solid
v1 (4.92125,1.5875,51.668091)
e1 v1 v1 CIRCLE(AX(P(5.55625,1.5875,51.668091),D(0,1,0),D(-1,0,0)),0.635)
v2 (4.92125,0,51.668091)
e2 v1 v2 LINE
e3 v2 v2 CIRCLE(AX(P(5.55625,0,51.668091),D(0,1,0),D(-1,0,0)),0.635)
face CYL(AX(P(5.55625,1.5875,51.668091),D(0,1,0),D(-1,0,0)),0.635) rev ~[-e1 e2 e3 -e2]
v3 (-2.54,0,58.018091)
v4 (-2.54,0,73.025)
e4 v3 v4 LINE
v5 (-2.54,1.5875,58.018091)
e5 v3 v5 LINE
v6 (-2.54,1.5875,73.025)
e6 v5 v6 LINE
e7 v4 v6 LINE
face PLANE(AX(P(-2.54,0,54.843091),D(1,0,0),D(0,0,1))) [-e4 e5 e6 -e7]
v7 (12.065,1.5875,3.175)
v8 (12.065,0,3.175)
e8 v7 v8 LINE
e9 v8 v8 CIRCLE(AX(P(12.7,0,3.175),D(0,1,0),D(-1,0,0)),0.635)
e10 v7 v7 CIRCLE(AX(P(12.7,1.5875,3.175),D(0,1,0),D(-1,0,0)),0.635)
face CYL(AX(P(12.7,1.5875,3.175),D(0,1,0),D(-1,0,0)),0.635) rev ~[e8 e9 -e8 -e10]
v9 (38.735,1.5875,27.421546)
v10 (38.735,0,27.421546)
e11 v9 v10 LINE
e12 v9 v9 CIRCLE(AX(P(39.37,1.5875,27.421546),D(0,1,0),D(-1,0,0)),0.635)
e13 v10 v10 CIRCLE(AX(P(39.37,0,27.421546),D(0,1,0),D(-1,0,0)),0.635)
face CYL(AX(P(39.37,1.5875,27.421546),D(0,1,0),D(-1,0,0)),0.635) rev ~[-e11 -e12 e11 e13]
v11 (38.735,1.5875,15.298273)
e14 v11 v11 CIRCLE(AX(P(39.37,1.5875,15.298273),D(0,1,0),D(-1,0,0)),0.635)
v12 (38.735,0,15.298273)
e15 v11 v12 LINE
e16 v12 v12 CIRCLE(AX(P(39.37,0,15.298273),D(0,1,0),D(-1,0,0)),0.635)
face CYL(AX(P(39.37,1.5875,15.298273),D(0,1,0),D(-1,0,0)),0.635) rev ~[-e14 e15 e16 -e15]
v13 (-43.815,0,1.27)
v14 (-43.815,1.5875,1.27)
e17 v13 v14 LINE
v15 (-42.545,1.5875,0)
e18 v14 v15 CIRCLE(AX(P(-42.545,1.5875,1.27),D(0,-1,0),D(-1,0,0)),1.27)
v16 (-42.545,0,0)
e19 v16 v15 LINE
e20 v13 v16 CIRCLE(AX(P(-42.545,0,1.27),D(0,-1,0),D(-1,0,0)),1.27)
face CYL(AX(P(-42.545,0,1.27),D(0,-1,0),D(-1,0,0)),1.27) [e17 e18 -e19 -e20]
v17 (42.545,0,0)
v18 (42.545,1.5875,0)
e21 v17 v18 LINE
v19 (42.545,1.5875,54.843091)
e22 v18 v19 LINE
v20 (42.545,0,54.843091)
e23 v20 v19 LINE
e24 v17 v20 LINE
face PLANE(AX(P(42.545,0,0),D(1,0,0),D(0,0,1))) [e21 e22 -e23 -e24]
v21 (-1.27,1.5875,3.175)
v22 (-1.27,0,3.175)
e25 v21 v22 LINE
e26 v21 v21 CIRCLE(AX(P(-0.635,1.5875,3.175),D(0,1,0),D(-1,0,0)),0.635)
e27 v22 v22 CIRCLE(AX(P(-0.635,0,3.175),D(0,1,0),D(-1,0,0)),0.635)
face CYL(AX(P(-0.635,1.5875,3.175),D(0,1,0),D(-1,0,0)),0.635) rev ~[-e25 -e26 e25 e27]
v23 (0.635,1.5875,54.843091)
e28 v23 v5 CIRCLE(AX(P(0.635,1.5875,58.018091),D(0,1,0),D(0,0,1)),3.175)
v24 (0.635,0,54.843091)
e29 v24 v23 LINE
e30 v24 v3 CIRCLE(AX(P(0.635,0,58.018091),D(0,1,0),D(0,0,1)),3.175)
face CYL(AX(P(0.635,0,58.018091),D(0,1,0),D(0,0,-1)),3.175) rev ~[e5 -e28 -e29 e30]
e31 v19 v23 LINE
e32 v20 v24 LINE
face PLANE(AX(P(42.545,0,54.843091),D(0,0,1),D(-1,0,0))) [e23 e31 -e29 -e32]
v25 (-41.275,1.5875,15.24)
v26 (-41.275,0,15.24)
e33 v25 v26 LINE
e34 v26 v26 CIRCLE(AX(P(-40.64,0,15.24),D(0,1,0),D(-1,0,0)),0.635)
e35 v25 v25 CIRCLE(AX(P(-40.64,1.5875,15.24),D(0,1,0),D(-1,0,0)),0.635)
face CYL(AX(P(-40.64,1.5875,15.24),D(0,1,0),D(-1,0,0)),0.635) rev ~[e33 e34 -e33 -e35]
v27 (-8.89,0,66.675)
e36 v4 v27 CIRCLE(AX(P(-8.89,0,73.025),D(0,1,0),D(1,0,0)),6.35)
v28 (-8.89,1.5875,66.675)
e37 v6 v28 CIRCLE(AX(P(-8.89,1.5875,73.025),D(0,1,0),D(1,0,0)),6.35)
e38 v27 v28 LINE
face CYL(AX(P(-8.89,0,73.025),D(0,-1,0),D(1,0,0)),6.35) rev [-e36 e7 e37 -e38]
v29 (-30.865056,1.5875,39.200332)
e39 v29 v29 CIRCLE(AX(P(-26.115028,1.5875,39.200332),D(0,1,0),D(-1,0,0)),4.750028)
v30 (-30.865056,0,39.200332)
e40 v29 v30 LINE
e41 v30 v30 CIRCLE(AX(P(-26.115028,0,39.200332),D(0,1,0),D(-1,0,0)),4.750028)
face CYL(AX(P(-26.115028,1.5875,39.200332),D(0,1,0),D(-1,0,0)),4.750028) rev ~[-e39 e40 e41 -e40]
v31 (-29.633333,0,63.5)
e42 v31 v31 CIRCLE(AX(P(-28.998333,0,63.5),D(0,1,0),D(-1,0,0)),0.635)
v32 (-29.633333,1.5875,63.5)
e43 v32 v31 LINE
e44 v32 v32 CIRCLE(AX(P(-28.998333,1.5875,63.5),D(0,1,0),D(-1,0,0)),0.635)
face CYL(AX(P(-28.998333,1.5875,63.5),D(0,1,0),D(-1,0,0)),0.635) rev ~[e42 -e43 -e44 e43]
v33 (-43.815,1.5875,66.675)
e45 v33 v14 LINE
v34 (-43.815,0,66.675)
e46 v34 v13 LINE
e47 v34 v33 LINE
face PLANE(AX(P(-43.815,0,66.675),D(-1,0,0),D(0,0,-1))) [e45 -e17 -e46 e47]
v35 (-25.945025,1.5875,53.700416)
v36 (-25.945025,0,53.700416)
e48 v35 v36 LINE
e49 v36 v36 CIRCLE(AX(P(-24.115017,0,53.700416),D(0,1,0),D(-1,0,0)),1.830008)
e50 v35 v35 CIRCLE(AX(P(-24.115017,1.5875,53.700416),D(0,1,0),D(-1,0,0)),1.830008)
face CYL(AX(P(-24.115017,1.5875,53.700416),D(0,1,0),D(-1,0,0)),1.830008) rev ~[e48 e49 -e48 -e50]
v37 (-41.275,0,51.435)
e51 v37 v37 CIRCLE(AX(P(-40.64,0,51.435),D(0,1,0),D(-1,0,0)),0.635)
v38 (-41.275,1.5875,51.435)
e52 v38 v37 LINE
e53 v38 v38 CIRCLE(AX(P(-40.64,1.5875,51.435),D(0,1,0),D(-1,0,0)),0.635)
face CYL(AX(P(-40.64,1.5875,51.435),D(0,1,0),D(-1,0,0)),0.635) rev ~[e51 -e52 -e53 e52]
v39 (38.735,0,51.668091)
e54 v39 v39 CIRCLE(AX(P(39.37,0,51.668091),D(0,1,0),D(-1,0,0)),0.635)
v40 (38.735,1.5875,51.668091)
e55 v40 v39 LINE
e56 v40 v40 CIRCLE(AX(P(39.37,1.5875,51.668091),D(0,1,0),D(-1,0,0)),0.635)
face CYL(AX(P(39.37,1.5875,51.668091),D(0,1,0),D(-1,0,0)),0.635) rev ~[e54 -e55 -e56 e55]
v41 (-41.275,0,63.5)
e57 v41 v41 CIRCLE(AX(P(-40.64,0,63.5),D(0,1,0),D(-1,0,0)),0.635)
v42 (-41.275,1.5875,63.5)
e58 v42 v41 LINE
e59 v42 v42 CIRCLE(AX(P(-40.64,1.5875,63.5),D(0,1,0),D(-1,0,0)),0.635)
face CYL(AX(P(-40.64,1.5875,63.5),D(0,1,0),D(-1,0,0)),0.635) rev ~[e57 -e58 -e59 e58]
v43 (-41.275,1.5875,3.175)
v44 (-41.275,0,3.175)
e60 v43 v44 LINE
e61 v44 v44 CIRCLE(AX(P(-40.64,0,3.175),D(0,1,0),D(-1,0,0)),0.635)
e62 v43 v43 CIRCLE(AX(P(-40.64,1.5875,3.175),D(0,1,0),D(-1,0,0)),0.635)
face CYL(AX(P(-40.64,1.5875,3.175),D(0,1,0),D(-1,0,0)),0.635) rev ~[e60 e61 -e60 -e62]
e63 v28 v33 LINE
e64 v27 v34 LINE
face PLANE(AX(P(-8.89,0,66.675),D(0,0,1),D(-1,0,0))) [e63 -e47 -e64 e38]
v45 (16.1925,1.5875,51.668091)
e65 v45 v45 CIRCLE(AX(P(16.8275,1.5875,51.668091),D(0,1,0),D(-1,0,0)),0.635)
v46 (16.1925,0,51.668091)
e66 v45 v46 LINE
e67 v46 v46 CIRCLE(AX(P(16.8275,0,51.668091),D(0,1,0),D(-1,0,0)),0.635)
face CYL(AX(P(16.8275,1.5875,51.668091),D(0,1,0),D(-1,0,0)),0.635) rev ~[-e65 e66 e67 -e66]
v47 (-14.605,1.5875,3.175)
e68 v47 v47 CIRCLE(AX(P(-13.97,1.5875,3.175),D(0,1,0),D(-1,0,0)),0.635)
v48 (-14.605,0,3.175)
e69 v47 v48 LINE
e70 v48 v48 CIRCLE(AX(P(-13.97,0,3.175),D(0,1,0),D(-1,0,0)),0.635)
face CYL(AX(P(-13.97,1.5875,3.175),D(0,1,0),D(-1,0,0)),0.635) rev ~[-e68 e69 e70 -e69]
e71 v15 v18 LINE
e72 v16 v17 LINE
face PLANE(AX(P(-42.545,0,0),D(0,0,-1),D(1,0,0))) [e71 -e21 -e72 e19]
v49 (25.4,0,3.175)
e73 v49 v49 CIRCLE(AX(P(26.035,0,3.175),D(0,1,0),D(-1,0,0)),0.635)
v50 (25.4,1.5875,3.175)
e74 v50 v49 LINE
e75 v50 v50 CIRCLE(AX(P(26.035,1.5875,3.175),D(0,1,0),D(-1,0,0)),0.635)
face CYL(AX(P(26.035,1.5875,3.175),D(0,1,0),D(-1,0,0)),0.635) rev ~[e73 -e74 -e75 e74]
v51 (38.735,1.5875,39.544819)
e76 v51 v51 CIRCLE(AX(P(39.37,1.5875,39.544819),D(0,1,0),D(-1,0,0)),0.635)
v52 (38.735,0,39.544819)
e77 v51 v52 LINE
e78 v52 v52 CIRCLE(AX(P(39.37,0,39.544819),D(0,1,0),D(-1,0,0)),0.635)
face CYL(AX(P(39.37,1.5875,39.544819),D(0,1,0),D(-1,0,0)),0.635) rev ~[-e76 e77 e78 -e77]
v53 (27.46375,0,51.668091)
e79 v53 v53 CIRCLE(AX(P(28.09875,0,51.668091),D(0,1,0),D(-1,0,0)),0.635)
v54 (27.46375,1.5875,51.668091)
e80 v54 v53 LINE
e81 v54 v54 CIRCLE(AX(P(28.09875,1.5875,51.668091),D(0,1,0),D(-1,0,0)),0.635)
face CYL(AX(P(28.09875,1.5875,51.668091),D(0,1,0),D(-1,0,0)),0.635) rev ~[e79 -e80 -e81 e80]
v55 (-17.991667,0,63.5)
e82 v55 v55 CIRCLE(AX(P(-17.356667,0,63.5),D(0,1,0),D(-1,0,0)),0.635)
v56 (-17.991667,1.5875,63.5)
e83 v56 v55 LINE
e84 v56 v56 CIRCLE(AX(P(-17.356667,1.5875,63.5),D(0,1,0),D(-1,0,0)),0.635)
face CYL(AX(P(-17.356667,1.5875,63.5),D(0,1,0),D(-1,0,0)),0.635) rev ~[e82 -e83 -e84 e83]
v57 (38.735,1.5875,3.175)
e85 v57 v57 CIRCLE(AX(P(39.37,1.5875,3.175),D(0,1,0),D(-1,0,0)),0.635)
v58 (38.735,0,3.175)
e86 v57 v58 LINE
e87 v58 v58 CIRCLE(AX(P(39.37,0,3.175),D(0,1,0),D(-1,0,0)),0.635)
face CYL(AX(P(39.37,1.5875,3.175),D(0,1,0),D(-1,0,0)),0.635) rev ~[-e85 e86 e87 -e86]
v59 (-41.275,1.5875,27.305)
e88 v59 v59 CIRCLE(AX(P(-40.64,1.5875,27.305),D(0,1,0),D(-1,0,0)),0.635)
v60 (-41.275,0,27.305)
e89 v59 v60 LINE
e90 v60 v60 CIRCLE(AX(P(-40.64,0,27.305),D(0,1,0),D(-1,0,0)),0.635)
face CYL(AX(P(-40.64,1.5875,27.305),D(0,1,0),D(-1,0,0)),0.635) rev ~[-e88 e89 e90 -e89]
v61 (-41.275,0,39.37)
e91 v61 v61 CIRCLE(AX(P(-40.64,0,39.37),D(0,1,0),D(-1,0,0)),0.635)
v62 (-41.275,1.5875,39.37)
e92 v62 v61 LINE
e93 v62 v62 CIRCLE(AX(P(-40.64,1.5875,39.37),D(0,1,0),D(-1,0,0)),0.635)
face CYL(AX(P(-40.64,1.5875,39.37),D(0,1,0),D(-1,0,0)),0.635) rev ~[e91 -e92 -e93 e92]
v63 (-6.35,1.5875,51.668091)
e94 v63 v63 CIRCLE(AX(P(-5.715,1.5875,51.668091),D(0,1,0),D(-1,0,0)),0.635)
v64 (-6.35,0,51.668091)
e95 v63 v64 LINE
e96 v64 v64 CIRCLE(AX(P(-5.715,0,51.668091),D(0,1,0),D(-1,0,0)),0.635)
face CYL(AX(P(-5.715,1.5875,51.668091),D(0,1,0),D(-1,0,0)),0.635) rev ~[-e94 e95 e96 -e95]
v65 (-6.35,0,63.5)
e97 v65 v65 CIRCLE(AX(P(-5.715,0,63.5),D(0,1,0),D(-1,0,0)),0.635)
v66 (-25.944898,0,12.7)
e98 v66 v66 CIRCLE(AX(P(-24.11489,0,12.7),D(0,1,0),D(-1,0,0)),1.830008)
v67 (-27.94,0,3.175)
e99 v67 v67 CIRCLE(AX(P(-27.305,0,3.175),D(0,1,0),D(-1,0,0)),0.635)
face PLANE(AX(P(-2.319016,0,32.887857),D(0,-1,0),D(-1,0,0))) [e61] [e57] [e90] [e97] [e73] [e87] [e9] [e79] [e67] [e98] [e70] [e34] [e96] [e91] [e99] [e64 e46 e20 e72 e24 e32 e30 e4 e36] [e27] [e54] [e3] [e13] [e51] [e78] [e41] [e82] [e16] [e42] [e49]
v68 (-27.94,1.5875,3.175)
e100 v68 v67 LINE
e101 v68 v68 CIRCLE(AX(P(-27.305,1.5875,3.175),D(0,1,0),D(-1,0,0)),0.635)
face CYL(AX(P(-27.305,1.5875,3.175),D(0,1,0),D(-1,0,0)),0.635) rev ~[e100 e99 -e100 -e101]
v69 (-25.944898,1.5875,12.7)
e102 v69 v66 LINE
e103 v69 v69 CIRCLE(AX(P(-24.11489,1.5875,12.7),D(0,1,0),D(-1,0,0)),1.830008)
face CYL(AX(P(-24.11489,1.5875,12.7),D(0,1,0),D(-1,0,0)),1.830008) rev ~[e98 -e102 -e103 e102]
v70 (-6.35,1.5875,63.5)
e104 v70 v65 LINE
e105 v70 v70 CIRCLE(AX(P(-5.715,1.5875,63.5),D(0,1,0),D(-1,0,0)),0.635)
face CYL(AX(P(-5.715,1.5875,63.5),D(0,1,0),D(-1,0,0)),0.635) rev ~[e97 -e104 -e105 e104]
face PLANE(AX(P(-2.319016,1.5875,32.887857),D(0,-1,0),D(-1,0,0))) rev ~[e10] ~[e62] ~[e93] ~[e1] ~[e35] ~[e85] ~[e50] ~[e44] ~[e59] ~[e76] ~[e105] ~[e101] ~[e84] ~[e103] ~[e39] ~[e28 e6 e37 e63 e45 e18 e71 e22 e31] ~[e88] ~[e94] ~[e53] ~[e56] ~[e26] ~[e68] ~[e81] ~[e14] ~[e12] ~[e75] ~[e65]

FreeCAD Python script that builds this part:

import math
import FreeCAD as App
import Part
import Sketcher
Q = App.Units.Quantity


def edges_at(feature, points):
    """Names of the edges that pass closest to the given points."""
    edges = feature.Shape.Edges
    near = lambda p: min(range(len(edges)), key=lambda i: edges[i].distToShape(Part.Vertex(*p))[0])
    return sorted({f"Edge{near(p) + 1}" for p in points})

doc = App.newDocument("Part")
body = doc.addObject("PartDesign::Body", "Body")

# Sketch on XZ plane
sketch1 = body.newObject("Sketcher::SketchObject", "Sketch")
sketch1.AttachmentSupport = (doc.getObject("XZ_Plane"), [""])
sketch1.MapMode = "FlatFace"
sketch1.addGeometry([
    Part.LineSegment(App.Vector(-43.8, 66.7, 0), App.Vector(-8.9, 66.7, 0)),  # 0
    Part.ArcOfCircle(Part.Circle(App.Vector(-8.9, 73, 0), App.Vector(0, 0, 1), 6.3), math.radians(-90), math.radians(0)),  # 1
    Part.LineSegment(App.Vector(-2.5, 73, 0), App.Vector(-2.5, 54.8, 0)),  # 2
    Part.LineSegment(App.Vector(-2.5, 54.8, 0), App.Vector(42.5, 54.8, 0)),  # 3
    Part.LineSegment(App.Vector(42.5, 54.8, 0), App.Vector(42.5, 0, 0)),  # 4
    Part.LineSegment(App.Vector(42.5, 0, 0), App.Vector(-42.5, 0, 0)),  # 5
    Part.ArcOfCircle(Part.Circle(App.Vector(-42.5, 1.3, 0), App.Vector(0, 0, 1), 1.3), math.radians(180), math.radians(270)),  # 6
    Part.LineSegment(App.Vector(-43.8, 1.3, 0), App.Vector(-43.8, 66.7, 0)),  # 7
], False)
sketch1.addConstraint([
    Sketcher.Constraint("Tangent", 0, 2, 1, 1),
    Sketcher.Constraint("Tangent", 1, 2, 2, 1),
    Sketcher.Constraint("Coincident", 2, 2, 3, 1),
    Sketcher.Constraint("Coincident", 3, 2, 4, 1),
    Sketcher.Constraint("Coincident", 4, 2, 5, 1),
    Sketcher.Constraint("Tangent", 5, 2, 6, 2),
    Sketcher.Constraint("Tangent", 6, 1, 7, 1),
    Sketcher.Constraint("Coincident", 7, 2, 0, 1),
    Sketcher.Constraint("Horizontal", 0),
    Sketcher.Constraint("Vertical", 2),
    Sketcher.Constraint("Horizontal", 3),
    Sketcher.Constraint("Vertical", 4),
    Sketcher.Constraint("Horizontal", 5),
    Sketcher.Constraint("Vertical", 7),
    Sketcher.Constraint("Symmetric", 4, 2, 5, 2, -1, 1),
    Sketcher.Constraint("Radius", 1, Q("0.25 in")),
    Sketcher.Constraint("Radius", 6, Q("0.05 in")),
    Sketcher.Constraint("DistanceX", 5, 2, 5, 1, Q("3.35 in")),
    Sketcher.Constraint("DistanceX", 1, 2, -1, 1, Q("0.1 in")),
    Sketcher.Constraint("DistanceY", 7, 1, 7, 2, Q("2.575 in")),
    Sketcher.Constraint("DistanceY", 2, 2, 2, 1, Q("18.181909 mm")),
])
pad1 = body.newObject("PartDesign::Pad", "Pad")
pad1.Profile = sketch1
pad1.Length = Q("0.0625 in")
pad1.Reversed = True
doc.recompute()

fillet = body.newObject("PartDesign::Fillet", "Fillet")
fillet.Base = (pad1, edges_at(pad1, [(-2.54, 0.794, 54.843)]))
fillet.Radius = Q("0.125 in")

# Sketch on XZ plane
sketch2 = body.newObject("Sketcher::SketchObject", "Sketch001")
sketch2.AttachmentSupport = (doc.getObject("XZ_Plane"), [""])
sketch2.MapMode = "FlatFace"
sketch2.AttachmentOffset = App.Placement(App.Vector(0, 0, -0.0625 * 25.4), App.Rotation())
sketch2.addGeometry([
    Part.Circle(App.Vector(-26.1, 39.2, 0), App.Vector(0, 0, 1), 4.8),
    Part.Circle(App.Vector(-24.1, 53.7, 0), App.Vector(0, 0, 1), 1.8),
    Part.Circle(App.Vector(-24.1, 12.7, 0), App.Vector(0, 0, 1), 1.8),
], False)
sketch2.addConstraint([
    Sketcher.Constraint("Equal", 1, 2),
    Sketcher.Constraint("DistanceY", -1, 1, 2, 3, Q("0.5 in")),
    Sketcher.Constraint("Diameter", 0, Q("9.500055 mm")),
    Sketcher.Constraint("Diameter", 1, Q("3.660016 mm")),
    Sketcher.Constraint("DistanceX", 0, 3, -1, 1, Q("26.115028 mm")),
    Sketcher.Constraint("DistanceY", -1, 1, 0, 3, Q("39.200332 mm")),
    Sketcher.Constraint("DistanceX", 2, 3, -1, 1, Q("24.11489 mm")),
    Sketcher.Constraint("DistanceX", 0, 3, 1, 3, Q("2.000012 mm")),
    Sketcher.Constraint("DistanceY", -1, 1, 1, 3, Q("53.700416 mm")),
])
pocket1 = body.newObject("PartDesign::Pocket", "Pocket")
pocket1.Profile = sketch2
pocket1.Type = "ThroughAll"
pocket1.Midplane = True

# Sketch on XZ plane
sketch3 = body.newObject("Sketcher::SketchObject", "Sketch002")
sketch3.AttachmentSupport = (doc.getObject("XZ_Plane"), [""])
sketch3.MapMode = "FlatFace"
sketch3.AttachmentOffset = App.Placement(App.Vector(0, 0, -0.0625 * 25.4), App.Rotation())
sketch3.addGeometry([
    Part.Circle(App.Vector(-27.3, 3.2, 0), App.Vector(0, 0, 1), 0.6),  # 0
    Part.Circle(App.Vector(-14, 3.2, 0), App.Vector(0, 0, 1), 0.6),  # 1
    Part.Circle(App.Vector(-0.6, 3.2, 0), App.Vector(0, 0, 1), 0.6),  # 2
    Part.Circle(App.Vector(12.7, 3.2, 0), App.Vector(0, 0, 1), 0.6),  # 3
    Part.Circle(App.Vector(26, 3.2, 0), App.Vector(0, 0, 1), 0.6),  # 4
    Part.Circle(App.Vector(39.4, 3.2, 0), App.Vector(0, 0, 1), 0.6),  # 5
    Part.Circle(App.Vector(39.4, 15.3, 0), App.Vector(0, 0, 1), 0.6),  # 6
    Part.Circle(App.Vector(39.4, 27.4, 0), App.Vector(0, 0, 1), 0.6),  # 7
    Part.Circle(App.Vector(39.4, 39.5, 0), App.Vector(0, 0, 1), 0.6),  # 8
    Part.Circle(App.Vector(39.4, 51.7, 0), App.Vector(0, 0, 1), 0.6),  # 9
    Part.Circle(App.Vector(28.1, 51.7, 0), App.Vector(0, 0, 1), 0.6),  # 10
    Part.Circle(App.Vector(16.8, 51.7, 0), App.Vector(0, 0, 1), 0.6),  # 11
    Part.Circle(App.Vector(5.6, 51.7, 0), App.Vector(0, 0, 1), 0.6),  # 12
    Part.Circle(App.Vector(-5.7, 51.7, 0), App.Vector(0, 0, 1), 0.6),  # 13
    Part.Circle(App.Vector(-5.7, 63.5, 0), App.Vector(0, 0, 1), 0.6),  # 14
    Part.Circle(App.Vector(-17.4, 63.5, 0), App.Vector(0, 0, 1), 0.6),  # 15
    Part.Circle(App.Vector(-29, 63.5, 0), App.Vector(0, 0, 1), 0.6),  # 16
    Part.Circle(App.Vector(-40.6, 63.5, 0), App.Vector(0, 0, 1), 0.6),  # 17
    Part.Circle(App.Vector(-40.6, 51.4, 0), App.Vector(0, 0, 1), 0.6),  # 18
    Part.Circle(App.Vector(-40.6, 39.4, 0), App.Vector(0, 0, 1), 0.6),  # 19
    Part.Circle(App.Vector(-40.6, 27.3, 0), App.Vector(0, 0, 1), 0.6),  # 20
    Part.Circle(App.Vector(-40.6, 15.2, 0), App.Vector(0, 0, 1), 0.6),  # 21
    Part.Circle(App.Vector(-40.6, 3.2, 0), App.Vector(0, 0, 1), 0.6),  # 22
], False)
sketch3.addConstraint([
    Sketcher.Constraint("Equal", 0, 1),
    Sketcher.Constraint("Equal", 1, 2),
    Sketcher.Constraint("Equal", 2, 3),
    Sketcher.Constraint("Equal", 3, 4),
    Sketcher.Constraint("Equal", 4, 5),
    Sketcher.Constraint("Equal", 5, 6),
    Sketcher.Constraint("Equal", 6, 7),
    Sketcher.Constraint("Equal", 7, 8),
    Sketcher.Constraint("Equal", 8, 9),
    Sketcher.Constraint("Equal", 9, 10),
    Sketcher.Constraint("Equal", 10, 11),
    Sketcher.Constraint("Equal", 11, 12),
    Sketcher.Constraint("Equal", 12, 13),
    Sketcher.Constraint("Equal", 13, 14),
    Sketcher.Constraint("Equal", 14, 15),
    Sketcher.Constraint("Equal", 15, 16),
    Sketcher.Constraint("Equal", 16, 17),
    Sketcher.Constraint("Equal", 17, 18),
    Sketcher.Constraint("Equal", 18, 19),
    Sketcher.Constraint("Equal", 19, 20),
    Sketcher.Constraint("Equal", 20, 21),
    Sketcher.Constraint("Equal", 21, 22),
    Sketcher.Constraint("Horizontal", 0, 3, 1, 3),
    Sketcher.Constraint("Horizontal", 1, 3, 2, 3),
    Sketcher.Constraint("Horizontal", 2, 3, 3, 3),
    Sketcher.Constraint("Horizontal", 3, 3, 4, 3),
    Sketcher.Constraint("Horizontal", 4, 3, 5, 3),
    Sketcher.Constraint("Horizontal", 9, 3, 10, 3),
    Sketcher.Constraint("Horizontal", 10, 3, 11, 3),
    Sketcher.Constraint("Horizontal", 11, 3, 12, 3),
    Sketcher.Constraint("Horizontal", 12, 3, 13, 3),
    Sketcher.Constraint("Horizontal", 14, 3, 15, 3),
    Sketcher.Constraint("Horizontal", 15, 3, 16, 3),
    Sketcher.Constraint("Horizontal", 16, 3, 17, 3),
    Sketcher.Constraint("Horizontal", 5, 3, 22, 3),
    Sketcher.Constraint("Vertical", 5, 3, 6, 3),
    Sketcher.Constraint("Vertical", 6, 3, 7, 3),
    Sketcher.Constraint("Vertical", 7, 3, 8, 3),
    Sketcher.Constraint("Vertical", 8, 3, 9, 3),
    Sketcher.Constraint("Vertical", 13, 3, 14, 3),
    Sketcher.Constraint("Vertical", 17, 3, 18, 3),
    Sketcher.Constraint("Vertical", 18, 3, 19, 3),
    Sketcher.Constraint("Vertical", 19, 3, 20, 3),
    Sketcher.Constraint("Vertical", 20, 3, 21, 3),
    Sketcher.Constraint("Vertical", 21, 3, 22, 3),
    Sketcher.Constraint("Diameter", 0, Q("0.05 in")),
    Sketcher.Constraint("DistanceX", -1, 1, 3, 3, Q("0.5 in")),
    Sketcher.Constraint("DistanceY", -1, 1, 14, 3, Q("2.5 in")),
    Sketcher.Constraint("DistanceX", 17, 3, -1, 1, Q("1.6 in")),
    Sketcher.Constraint("DistanceY", -1, 1, 21, 3, Q("0.6 in")),
    Sketcher.Constraint("DistanceX", 0, 3, 4, 3, Q("2.1 in")),
    Sketcher.Constraint("DistanceX", 1, 3, 5, 3, Q("2.1 in")),
    Sketcher.Constraint("DistanceX", 1, 3, -1, 1, Q("0.55 in")),
    Sketcher.Constraint("DistanceY", -1, 1, 19, 3, Q("1.55 in")),
    Sketcher.Constraint("DistanceX", 0, 3, 2, 3, Q("1.05 in")),
    Sketcher.Constraint("DistanceY", 20, 3, 18, 3, Q("0.95 in")),
    Sketcher.Constraint("DistanceY", 0, 3, 20, 3, Q("0.95 in")),
    Sketcher.Constraint("DistanceX", 0, 3, -1, 1, Q("1.075 in")),
    Sketcher.Constraint("DistanceY", -1, 1, 0, 3, Q("0.125 in")),
    Sketcher.Constraint("DistanceX", -1, 1, 12, 3, Q("0.21875 in")),
    Sketcher.Constraint("DistanceX", 13, 3, -1, 1, Q("0.225 in")),
    Sketcher.Constraint("DistanceX", -1, 1, 11, 3, Q("0.6625 in")),
    Sketcher.Constraint("DistanceX", 12, 3, 10, 3, Q("0.8875 in")),
    Sketcher.Constraint("DistanceY", -1, 1, 8, 3, Q("39.544819 mm")),
    Sketcher.Constraint("DistanceY", -1, 1, 9, 3, Q("51.668091 mm")),
    Sketcher.Constraint("DistanceY", 6, 3, 9, 3, Q("36.369819 mm")),
    Sketcher.Constraint("DistanceY", -1, 1, 7, 3, Q("27.421546 mm")),
    Sketcher.Constraint("DistanceX", 15, 3, -1, 1, Q("17.356667 mm")),
    Sketcher.Constraint("DistanceX", 16, 3, -1, 1, Q("28.998333 mm")),
])
pocket2 = body.newObject("PartDesign::Pocket", "Pocket001")
pocket2.Profile = sketch3
pocket2.Type = "ThroughAll"
pocket2.Midplane = True

doc.recompute()
